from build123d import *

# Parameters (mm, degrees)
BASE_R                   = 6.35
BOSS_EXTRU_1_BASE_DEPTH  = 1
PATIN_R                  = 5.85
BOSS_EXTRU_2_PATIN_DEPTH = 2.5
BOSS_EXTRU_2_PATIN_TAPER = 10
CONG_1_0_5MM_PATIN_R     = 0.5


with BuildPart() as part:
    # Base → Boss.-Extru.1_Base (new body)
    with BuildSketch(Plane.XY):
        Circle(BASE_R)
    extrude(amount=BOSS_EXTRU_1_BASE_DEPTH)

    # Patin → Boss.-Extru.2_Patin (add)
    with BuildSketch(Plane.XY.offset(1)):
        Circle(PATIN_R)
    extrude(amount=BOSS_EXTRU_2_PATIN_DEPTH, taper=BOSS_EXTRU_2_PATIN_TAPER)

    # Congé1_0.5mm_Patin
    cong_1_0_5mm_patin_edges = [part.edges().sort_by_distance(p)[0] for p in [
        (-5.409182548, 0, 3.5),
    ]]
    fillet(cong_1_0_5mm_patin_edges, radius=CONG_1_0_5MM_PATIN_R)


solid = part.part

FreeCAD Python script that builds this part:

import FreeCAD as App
import Part
import Sketcher
from FreeCAD import Vector


def edges_at(feature, points):
    """Names of the edges that pass closest to the given points."""
    edges = feature.Shape.Edges
    near = lambda p: min(range(len(edges)), key=lambda i: edges[i].distToShape(Part.Vertex(*p))[0])
    return sorted({f"Edge{near(p) + 1}" for p in points})

doc = App.newDocument("Part")
body = doc.addObject("PartDesign::Body", "Body")

sketch1 = doc.addObject("Sketcher::SketchObject", "Sketch")
body.addObject(sketch1)
sketch1.AttachmentSupport = (doc.XY_Plane, [""])
sketch1.MapMode = "FlatFace"
sketch1.addGeometry(Part.Circle(Vector(0, 0, 0), Vector(0, 0, 1), 6), False)
sketch1.addConstraint(Sketcher.Constraint("Coincident", 0, 3, -1, 1))
sketch1.addConstraint(Sketcher.Constraint("Diameter", 0, 12.7))
pad1 = doc.addObject("PartDesign::Pad", "Pad")
body.addObject(pad1)
pad1.Profile = sketch1
pad1.Length = 1

sketch2 = doc.addObject("Sketcher::SketchObject", "Sketch001")
body.addObject(sketch2)
sketch2.AttachmentSupport = (doc.XY_Plane, [""])
sketch2.MapMode = "FlatFace"
sketch2.AttachmentOffset = App.Placement(Vector(0, 0, 1), App.Rotation())
sketch2.addGeometry(Part.Circle(Vector(0, 0, 0), Vector(0, 0, 1), 6), False)
sketch2.addConstraint(Sketcher.Constraint("Coincident", 0, 3, -1, 1))
sketch2.addConstraint(Sketcher.Constraint("Diameter", 0, 11.7))
pad2 = doc.addObject("PartDesign::Pad", "Pad001")
body.addObject(pad2)
pad2.Profile = sketch2
pad2.Length = 2.5
pad2.TaperAngle = -10
doc.recompute()

fillet = doc.addObject("PartDesign::Fillet", "Fillet")
body.addObject(fillet)
fillet.Base = (pad2, edges_at(pad2, [(-5.409, 0, 3.5)]))
fillet.Radius = 0.5

doc.recompute()
